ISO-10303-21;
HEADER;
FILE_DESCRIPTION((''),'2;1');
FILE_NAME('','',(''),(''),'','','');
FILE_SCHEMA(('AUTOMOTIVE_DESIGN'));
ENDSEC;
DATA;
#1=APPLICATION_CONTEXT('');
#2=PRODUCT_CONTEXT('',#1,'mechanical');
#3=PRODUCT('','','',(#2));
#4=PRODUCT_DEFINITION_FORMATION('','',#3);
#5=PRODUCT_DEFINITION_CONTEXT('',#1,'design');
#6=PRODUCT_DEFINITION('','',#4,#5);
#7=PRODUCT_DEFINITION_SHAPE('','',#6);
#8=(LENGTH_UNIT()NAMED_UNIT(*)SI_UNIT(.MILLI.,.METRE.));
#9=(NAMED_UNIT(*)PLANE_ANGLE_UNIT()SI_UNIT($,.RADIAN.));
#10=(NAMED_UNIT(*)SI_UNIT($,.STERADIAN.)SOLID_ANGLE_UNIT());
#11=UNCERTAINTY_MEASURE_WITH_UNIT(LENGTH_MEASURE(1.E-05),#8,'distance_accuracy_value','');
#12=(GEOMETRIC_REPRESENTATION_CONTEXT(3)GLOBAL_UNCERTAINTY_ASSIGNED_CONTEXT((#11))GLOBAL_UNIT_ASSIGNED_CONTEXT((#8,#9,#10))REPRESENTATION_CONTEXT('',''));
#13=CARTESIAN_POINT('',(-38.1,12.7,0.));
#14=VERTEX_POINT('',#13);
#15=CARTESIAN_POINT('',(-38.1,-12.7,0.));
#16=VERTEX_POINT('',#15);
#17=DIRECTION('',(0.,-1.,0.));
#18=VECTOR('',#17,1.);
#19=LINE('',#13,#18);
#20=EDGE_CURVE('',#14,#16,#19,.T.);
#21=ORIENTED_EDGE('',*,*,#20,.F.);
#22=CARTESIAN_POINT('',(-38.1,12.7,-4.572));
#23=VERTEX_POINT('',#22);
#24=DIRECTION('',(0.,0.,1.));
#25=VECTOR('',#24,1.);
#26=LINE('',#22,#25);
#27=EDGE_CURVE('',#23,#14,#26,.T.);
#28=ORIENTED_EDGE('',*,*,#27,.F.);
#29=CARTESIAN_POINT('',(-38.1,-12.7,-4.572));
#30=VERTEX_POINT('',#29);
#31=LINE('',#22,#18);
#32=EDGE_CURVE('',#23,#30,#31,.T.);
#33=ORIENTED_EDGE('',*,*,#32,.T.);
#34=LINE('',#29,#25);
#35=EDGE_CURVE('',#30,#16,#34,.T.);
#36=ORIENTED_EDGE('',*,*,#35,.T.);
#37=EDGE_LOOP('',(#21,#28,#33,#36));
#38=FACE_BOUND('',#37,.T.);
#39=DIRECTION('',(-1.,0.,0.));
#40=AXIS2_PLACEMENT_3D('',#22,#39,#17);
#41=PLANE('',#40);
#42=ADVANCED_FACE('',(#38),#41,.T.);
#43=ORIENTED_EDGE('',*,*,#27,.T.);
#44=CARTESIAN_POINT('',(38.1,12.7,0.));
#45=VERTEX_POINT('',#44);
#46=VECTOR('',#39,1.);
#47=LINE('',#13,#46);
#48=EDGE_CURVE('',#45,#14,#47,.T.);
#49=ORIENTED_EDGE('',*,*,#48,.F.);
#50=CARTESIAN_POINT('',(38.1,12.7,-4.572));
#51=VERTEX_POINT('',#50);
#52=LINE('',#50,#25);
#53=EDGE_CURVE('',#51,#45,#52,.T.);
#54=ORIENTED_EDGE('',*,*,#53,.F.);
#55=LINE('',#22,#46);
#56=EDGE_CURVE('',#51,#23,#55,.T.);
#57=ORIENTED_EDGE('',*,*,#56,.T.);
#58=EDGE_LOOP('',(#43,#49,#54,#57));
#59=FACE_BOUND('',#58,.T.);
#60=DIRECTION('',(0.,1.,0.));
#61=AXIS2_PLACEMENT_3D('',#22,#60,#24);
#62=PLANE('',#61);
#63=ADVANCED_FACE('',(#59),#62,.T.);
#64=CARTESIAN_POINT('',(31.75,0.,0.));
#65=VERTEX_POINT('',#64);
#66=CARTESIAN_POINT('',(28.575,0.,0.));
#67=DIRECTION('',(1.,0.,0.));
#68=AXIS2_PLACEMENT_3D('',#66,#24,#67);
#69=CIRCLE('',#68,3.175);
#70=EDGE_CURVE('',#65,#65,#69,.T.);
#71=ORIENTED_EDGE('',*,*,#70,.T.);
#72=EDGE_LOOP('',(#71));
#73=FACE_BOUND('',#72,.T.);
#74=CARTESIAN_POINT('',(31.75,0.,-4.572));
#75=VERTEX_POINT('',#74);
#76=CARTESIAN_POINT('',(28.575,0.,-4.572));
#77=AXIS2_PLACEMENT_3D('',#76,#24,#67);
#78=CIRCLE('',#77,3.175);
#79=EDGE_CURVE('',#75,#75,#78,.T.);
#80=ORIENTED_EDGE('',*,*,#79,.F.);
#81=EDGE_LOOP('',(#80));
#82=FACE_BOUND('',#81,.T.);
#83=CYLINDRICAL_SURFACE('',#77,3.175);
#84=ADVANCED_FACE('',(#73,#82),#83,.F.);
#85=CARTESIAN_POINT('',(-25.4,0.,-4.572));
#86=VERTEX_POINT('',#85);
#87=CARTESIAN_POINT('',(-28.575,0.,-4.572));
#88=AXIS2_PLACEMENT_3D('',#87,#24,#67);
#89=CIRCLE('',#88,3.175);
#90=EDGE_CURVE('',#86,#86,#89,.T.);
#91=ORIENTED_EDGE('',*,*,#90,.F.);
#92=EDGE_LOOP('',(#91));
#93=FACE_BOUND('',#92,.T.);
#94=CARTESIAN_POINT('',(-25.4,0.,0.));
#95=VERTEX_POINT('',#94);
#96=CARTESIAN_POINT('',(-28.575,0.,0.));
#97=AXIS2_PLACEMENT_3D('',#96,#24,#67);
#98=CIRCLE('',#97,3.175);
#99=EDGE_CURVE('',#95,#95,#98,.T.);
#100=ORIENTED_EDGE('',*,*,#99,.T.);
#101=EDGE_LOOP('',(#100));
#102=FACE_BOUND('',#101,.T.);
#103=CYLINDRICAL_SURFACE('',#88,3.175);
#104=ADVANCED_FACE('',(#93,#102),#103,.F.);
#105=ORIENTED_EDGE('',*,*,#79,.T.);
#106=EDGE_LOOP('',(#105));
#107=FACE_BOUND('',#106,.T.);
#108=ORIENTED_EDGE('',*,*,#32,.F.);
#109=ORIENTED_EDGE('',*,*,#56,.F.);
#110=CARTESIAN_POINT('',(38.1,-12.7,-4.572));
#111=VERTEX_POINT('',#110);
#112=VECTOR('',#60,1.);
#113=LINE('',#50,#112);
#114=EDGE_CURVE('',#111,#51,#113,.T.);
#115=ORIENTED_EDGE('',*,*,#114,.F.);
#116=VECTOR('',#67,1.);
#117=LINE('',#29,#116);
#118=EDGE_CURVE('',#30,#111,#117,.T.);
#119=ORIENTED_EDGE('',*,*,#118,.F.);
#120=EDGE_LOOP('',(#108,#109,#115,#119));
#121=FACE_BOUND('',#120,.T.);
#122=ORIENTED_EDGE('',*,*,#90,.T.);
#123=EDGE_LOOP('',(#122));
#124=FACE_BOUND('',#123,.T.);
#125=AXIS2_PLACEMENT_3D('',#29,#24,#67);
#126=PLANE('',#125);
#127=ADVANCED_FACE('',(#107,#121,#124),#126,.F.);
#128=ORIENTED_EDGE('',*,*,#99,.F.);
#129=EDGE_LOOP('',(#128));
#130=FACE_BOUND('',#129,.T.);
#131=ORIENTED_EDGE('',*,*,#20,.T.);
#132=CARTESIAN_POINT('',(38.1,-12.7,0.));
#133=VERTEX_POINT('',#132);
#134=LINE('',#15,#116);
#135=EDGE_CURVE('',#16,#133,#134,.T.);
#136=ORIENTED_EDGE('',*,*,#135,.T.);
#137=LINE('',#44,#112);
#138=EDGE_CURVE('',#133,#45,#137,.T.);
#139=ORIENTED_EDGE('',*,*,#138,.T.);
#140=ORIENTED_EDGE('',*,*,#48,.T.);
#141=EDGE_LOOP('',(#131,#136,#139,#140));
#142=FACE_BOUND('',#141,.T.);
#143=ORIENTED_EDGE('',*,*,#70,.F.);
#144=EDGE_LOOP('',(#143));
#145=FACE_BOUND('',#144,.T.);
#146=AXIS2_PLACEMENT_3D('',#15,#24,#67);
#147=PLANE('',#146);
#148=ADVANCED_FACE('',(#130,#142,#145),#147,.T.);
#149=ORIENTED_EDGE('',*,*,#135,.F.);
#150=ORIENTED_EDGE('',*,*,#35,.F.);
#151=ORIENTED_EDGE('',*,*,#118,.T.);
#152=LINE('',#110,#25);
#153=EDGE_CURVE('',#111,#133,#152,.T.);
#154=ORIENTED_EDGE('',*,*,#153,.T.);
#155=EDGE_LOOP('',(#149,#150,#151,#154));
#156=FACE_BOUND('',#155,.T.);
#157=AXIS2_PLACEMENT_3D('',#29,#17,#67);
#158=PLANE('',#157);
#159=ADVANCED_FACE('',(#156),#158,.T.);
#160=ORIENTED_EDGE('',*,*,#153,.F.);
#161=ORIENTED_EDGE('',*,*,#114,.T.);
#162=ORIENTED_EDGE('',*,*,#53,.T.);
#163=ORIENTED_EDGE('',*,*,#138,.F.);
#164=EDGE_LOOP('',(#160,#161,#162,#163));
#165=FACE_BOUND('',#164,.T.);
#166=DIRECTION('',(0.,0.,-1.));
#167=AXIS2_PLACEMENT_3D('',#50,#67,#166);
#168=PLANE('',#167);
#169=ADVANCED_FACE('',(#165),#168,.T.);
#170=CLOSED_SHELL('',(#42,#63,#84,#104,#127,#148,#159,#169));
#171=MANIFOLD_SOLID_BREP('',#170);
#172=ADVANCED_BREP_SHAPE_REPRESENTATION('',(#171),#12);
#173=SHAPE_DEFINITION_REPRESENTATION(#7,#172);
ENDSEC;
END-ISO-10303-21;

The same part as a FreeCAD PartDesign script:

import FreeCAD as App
import Part
import Sketcher

V = App.Vector
Q = App.Units.Quantity

doc = App.newDocument("Part")
params = doc.addObject("Spreadsheet::Sheet", "Params")
for row, (alias, value) in enumerate([
    ("sketch1_diameter", "0.25 in"),
    ("sketch1_width", "3 in"),
    ("sketch1_height", "1 in"),
    ("pad1_length", "0.18 in"),
], start=1):
    params.set(f"A{row}", alias)
    params.set(f"B{row}", "=" + value)
    params.setAlias(f"B{row}", alias)

body = doc.addObject("PartDesign::Body", "Body")

# Sketch on XY plane
sketch1 = body.newObject("Sketcher::SketchObject", "Sketch")
sketch1.AttachmentSupport = (doc.getObject("XY_Plane"), [""])
sketch1.MapMode = "FlatFace"
sketch1.addGeometry(Part.LineSegment(V(-38.1, 12.7, 0), V(-38.1, -12.7, 0)), False)
sketch1.addGeometry(Part.LineSegment(V(-38.1, -12.7, 0), V(38.1, -12.7, 0)), False)
sketch1.addGeometry(Part.LineSegment(V(38.1, -12.7, 0), V(38.1, 12.7, 0)), False)
sketch1.addGeometry(Part.LineSegment(V(38.1, 12.7, 0), V(-38.1, 12.7, 0)), False)
sketch1.addGeometry(Part.Circle(V(-28.6, 0, 0), V(0, 0, 1), 3.2), False)
sketch1.addGeometry(Part.Circle(V(28.6, 0, 0), V(0, 0, 1), 3.2), False)
sketch1.addConstraint(Sketcher.Constraint("Coincident", 0, 2, 1, 1))
sketch1.addConstraint(Sketcher.Constraint("Coincident", 1, 2, 2, 1))
sketch1.addConstraint(Sketcher.Constraint("Coincident", 2, 2, 3, 1))
sketch1.addConstraint(Sketcher.Constraint("Coincident", 3, 2, 0, 1))
sketch1.addConstraint(Sketcher.Constraint("Vertical", 0))
sketch1.addConstraint(Sketcher.Constraint("Horizontal", 1))
sketch1.addConstraint(Sketcher.Constraint("Vertical", 2))
sketch1.addConstraint(Sketcher.Constraint("Horizontal", 3))
sketch1.addConstraint(Sketcher.Constraint("Equal", 4, 5))
sketch1.addConstraint(Sketcher.Constraint("Symmetric", 4, 3, 5, 3, -1, 1))
sketch1.addConstraint(Sketcher.Constraint("Symmetric", 0, 2, 2, 2, -1, 1))
sketch1.addConstraint(Sketcher.Constraint("PointOnObject", 4, 3, -1))
sketch1.addConstraint(Sketcher.Constraint("Diameter", 4, Q("0.25 in")))
sketch1.addConstraint(Sketcher.Constraint("DistanceX", 1, 1, 1, 2, Q("3 in")))
sketch1.addConstraint(Sketcher.Constraint("DistanceY", 0, 2, 0, 1, Q("1 in")))
sketch1.addConstraint(Sketcher.Constraint("DistanceX", 4, 3, 5, 3, Q("2.25 in")))
sketch1.setExpression("Constraints[12]", "Params.sketch1_diameter")
sketch1.setExpression("Constraints[13]", "Params.sketch1_width")
sketch1.setExpression("Constraints[14]", "Params.sketch1_height")
pad1 = body.newObject("PartDesign::Pad", "Pad")
pad1.Profile = sketch1
pad1.setExpression("Length", "Params.pad1_length")
pad1.Reversed = True

doc.recompute()
